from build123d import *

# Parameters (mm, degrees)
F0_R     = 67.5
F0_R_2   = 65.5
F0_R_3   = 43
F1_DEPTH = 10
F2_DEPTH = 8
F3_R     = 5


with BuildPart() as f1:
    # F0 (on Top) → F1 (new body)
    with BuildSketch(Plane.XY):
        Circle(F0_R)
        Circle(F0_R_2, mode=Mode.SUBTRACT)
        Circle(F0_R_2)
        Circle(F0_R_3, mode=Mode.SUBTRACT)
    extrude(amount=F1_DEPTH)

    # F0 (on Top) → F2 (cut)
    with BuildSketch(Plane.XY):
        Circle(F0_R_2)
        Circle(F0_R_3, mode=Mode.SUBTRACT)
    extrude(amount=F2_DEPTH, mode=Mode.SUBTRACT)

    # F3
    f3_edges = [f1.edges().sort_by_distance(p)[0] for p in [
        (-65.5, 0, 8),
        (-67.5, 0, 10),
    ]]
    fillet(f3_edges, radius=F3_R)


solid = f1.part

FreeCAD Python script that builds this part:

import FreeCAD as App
import Part
import Sketcher
Q = App.Units.Quantity


def edges_at(feature, points):
    """Names of the edges that pass closest to the given points."""
    edges = feature.Shape.Edges
    near = lambda p: min(range(len(edges)), key=lambda i: edges[i].distToShape(Part.Vertex(*p))[0])
    return sorted({f"Edge{near(p) + 1}" for p in points})

doc = App.newDocument("Part")
body = doc.addObject("PartDesign::Body", "Body")

# Sketch on XY plane
sketch1 = body.newObject("Sketcher::SketchObject", "Sketch")
sketch1.AttachmentSupport = (doc.getObject("XY_Plane"), [""])
sketch1.MapMode = "FlatFace"
sketch1.addGeometry(Part.Circle(App.Vector(0, 0, 0), App.Vector(0, 0, 1), 68), False)
sketch1.addGeometry(Part.Circle(App.Vector(0, 0, 0), App.Vector(0, 0, 1), 43), False)
sketch1.addConstraint(Sketcher.Constraint("Coincident", 0, 3, -1, 1))
sketch1.addConstraint(Sketcher.Constraint("Coincident", 1, 3, -1, 1))
sketch1.addConstraint(Sketcher.Constraint("Diameter", 0, Q("135 mm")))
sketch1.addConstraint(Sketcher.Constraint("Diameter", 1, Q("86 mm")))
pad1 = body.newObject("PartDesign::Pad", "Pad")
pad1.Profile = sketch1
pad1.Length = 10

# Sketch on XY plane
sketch2 = body.newObject("Sketcher::SketchObject", "Sketch001")
sketch2.AttachmentSupport = (doc.getObject("XY_Plane"), [""])
sketch2.MapMode = "FlatFace"
sketch2.addGeometry(Part.Circle(App.Vector(0, 0, 0), App.Vector(0, 0, 1), 66), False)
sketch2.addGeometry(Part.Circle(App.Vector(0, 0, 0), App.Vector(0, 0, 1), 43), False)
sketch2.addConstraint(Sketcher.Constraint("Coincident", 0, 3, -1, 1))
sketch2.addConstraint(Sketcher.Constraint("Coincident", 1, 3, -1, 1))
sketch2.addConstraint(Sketcher.Constraint("Diameter", 0, Q("131 mm")))
sketch2.addConstraint(Sketcher.Constraint("Diameter", 1, Q("86 mm")))
pocket1 = body.newObject("PartDesign::Pocket", "Pocket")
pocket1.Profile = sketch2
pocket1.Length = 8
pocket1.Reversed = True
doc.recompute()

fillet = body.newObject("PartDesign::Fillet", "Fillet")
fillet.Base = (pocket1, edges_at(pocket1, [(-65.5, 0, 8), (-67.5, 0, 10)]))
fillet.Radius = 5

doc.recompute()
